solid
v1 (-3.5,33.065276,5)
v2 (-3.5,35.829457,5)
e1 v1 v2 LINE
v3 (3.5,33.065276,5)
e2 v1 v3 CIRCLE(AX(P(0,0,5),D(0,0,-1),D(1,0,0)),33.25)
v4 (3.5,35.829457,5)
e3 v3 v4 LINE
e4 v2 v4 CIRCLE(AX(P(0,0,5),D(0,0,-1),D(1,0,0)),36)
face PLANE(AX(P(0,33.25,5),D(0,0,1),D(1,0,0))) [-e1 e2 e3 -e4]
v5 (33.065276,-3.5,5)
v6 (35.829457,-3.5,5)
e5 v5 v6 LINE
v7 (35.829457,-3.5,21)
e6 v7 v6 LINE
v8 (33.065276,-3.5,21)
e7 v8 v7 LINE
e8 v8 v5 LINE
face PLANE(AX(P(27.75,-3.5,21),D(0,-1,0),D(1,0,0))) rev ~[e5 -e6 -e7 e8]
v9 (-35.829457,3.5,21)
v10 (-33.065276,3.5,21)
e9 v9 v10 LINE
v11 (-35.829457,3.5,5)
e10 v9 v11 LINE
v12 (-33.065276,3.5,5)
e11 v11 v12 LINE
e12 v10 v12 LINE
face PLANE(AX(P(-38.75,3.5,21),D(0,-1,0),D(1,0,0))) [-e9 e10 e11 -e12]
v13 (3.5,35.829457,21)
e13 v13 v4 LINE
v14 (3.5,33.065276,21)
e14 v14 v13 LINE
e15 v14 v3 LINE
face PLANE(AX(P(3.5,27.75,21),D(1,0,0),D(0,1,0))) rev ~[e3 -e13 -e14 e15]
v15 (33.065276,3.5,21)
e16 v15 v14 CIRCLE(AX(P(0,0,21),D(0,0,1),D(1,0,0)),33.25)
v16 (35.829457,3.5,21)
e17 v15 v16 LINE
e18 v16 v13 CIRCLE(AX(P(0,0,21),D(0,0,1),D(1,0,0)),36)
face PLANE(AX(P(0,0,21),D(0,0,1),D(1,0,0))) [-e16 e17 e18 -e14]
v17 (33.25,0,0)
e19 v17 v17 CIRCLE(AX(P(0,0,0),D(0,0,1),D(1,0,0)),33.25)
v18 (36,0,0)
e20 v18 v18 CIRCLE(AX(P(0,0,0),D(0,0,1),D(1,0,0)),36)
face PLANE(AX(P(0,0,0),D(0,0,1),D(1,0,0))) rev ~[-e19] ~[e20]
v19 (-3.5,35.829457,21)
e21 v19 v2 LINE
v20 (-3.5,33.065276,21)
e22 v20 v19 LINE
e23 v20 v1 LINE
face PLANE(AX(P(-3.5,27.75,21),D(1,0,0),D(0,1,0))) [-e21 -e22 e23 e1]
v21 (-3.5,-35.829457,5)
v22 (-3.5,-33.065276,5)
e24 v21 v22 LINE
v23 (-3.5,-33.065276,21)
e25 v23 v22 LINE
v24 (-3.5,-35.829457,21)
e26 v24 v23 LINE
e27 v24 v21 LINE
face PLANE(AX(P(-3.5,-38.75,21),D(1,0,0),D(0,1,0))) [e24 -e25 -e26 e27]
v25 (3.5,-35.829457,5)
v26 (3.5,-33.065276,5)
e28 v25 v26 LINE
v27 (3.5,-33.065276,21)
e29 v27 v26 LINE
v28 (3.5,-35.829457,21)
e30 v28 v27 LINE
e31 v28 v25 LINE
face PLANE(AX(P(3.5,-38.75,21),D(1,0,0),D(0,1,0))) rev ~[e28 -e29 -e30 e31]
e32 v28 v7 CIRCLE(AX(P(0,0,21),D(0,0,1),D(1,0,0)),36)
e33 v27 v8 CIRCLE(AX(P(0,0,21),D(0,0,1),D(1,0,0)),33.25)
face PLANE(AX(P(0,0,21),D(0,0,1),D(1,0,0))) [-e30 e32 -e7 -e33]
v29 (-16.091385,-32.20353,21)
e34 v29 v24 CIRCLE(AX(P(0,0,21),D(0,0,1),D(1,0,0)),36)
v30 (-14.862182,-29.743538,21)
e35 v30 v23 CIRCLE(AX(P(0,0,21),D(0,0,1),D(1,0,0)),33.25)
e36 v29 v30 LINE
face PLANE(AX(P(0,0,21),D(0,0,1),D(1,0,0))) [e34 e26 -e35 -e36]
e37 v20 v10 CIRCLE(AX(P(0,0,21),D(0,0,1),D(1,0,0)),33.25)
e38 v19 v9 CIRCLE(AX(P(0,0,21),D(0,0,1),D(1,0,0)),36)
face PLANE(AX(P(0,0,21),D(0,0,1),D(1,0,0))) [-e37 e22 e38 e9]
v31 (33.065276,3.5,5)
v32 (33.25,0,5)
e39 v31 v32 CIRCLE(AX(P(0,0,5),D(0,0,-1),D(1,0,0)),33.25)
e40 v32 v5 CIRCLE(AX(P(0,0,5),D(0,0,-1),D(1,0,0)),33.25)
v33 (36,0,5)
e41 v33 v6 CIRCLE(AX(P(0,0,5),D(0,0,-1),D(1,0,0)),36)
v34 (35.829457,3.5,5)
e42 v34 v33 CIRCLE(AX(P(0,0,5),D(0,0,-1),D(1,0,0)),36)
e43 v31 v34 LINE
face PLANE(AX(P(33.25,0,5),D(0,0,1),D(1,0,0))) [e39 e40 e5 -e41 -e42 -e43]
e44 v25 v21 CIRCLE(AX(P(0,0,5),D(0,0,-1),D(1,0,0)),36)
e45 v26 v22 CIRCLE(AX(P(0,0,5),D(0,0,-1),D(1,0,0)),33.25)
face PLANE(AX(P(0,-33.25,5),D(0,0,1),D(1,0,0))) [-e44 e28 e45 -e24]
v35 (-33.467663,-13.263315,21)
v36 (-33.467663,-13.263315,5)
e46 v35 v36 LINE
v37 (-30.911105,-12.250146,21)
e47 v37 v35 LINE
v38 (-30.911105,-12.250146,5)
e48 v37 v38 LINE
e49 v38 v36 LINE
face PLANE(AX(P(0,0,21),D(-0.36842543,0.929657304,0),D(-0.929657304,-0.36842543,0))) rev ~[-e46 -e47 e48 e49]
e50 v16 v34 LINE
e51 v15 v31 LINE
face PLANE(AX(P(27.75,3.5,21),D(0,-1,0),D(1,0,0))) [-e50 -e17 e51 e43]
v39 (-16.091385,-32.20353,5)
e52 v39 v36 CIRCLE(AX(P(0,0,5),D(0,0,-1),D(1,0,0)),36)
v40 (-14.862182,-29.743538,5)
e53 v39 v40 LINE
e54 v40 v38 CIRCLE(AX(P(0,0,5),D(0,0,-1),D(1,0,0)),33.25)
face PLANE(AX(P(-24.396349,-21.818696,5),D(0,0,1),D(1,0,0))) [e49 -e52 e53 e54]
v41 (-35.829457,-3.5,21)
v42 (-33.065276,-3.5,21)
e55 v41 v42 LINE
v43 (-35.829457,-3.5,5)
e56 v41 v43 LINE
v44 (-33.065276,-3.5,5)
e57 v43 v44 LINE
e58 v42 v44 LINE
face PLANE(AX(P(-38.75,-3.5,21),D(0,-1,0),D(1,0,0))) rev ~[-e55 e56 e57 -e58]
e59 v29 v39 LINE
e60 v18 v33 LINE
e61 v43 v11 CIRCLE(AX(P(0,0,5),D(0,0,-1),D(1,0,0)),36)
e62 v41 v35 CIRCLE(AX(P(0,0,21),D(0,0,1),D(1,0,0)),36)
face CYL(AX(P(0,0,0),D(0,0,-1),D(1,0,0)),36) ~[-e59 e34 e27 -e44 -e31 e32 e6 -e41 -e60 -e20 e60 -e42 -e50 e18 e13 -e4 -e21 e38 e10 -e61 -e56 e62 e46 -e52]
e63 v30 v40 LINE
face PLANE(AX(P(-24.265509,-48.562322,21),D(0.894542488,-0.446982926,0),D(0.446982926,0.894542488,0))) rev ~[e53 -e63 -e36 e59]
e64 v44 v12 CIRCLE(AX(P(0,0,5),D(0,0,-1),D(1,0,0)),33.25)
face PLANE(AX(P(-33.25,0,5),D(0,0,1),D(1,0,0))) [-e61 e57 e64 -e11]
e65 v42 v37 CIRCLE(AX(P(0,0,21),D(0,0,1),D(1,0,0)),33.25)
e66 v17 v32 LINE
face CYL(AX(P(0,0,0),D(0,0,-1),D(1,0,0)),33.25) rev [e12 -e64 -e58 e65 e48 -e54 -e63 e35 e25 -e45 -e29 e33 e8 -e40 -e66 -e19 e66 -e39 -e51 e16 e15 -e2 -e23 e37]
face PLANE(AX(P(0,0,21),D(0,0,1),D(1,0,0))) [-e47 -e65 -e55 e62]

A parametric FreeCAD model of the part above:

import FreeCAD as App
import Part
import Sketcher
from FreeCAD import Vector


def add_polygon(sketch, points):
    """Adds a closed chain of lines whose ends are joined by coincident constraints."""
    first, n = sketch.GeometryCount, len(points)
    for a, b in zip(points, points[1:] + points[:1]):
        sketch.addGeometry(Part.LineSegment(App.Vector(*a, 0), App.Vector(*b, 0)), False)
    for i in range(n):
        sketch.addConstraint(Sketcher.Constraint("Coincident", first + i, 2, first + (i + 1) % n, 1))

doc = App.newDocument("Part")
body = doc.addObject("PartDesign::Body", "Body")

sketch1 = doc.addObject("Sketcher::SketchObject", "Sketch")
body.addObject(sketch1)
sketch1.AttachmentSupport = (doc.XY_Plane, [""])
sketch1.MapMode = "FlatFace"
sketch1.addGeometry([
    Part.Circle(Vector(0, 0, 0), Vector(0, 0, 1), 36),
    Part.Circle(Vector(0, 0, 0), Vector(0, 0, 1), 33.25),
], False)
sketch1.addConstraint([
    Sketcher.Constraint("Coincident", 0, 3, -1, 1),
    Sketcher.Constraint("Coincident", 1, 3, -1, 1),
    Sketcher.Constraint("Diameter", 0, 72.0),
    Sketcher.Constraint("Diameter", 1, 66.5),
])
pad1 = doc.addObject("PartDesign::Pad", "Pad")
body.addObject(pad1)
pad1.Profile = sketch1
pad1.Length = 21

sketch2 = doc.addObject("Sketcher::SketchObject", "Sketch001")
body.addObject(sketch2)
sketch2.AttachmentSupport = (doc.XY_Plane, [""])
sketch2.MapMode = "FlatFace"
sketch2.AttachmentOffset = App.Placement(Vector(0, 0, 21), App.Rotation())
add_polygon(sketch2, [(-3.5, 38.75), (-3.5, 27.75), (3.5, 27.75), (3.5, 38.75)])
add_polygon(sketch2, [(-38.75, 3.5), (-38.75, -3.5), (-27.75, -3.5), (-27.75, 3.5)])
add_polygon(sketch2, [(-3.5, -27.75), (-3.5, -38.75), (3.5, -38.75), (3.5, -27.75)])
add_polygon(sketch2, [(27.75, 3.5), (27.75, -3.5), (38.75, -3.5), (38.75, 3.5)])
add_polygon(sketch2, [(-24.265509, -48.562322), (0, 0), (-52.630056, -20.857418)])
sketch2.addConstraint([
    Sketcher.Constraint("Vertical", 0),
    Sketcher.Constraint("Horizontal", 1),
    Sketcher.Constraint("Vertical", 2),
    Sketcher.Constraint("Horizontal", 3),
    Sketcher.Constraint("Vertical", 4),
    Sketcher.Constraint("Horizontal", 5),
    Sketcher.Constraint("Vertical", 6),
    Sketcher.Constraint("Horizontal", 7),
    Sketcher.Constraint("Vertical", 8),
    Sketcher.Constraint("Horizontal", 9),
    Sketcher.Constraint("Vertical", 10),
    Sketcher.Constraint("Horizontal", 11),
    Sketcher.Constraint("Vertical", 12),
    Sketcher.Constraint("Horizontal", 13),
    Sketcher.Constraint("Vertical", 14),
    Sketcher.Constraint("Horizontal", 15),
    Sketcher.Constraint("Coincident", 16, 2, -1, 1),
    Sketcher.Constraint("Symmetric", 2, 2, 8, 2, -1, 1),
    Sketcher.Constraint("Symmetric", 0, 2, 10, 2, -1, 1),
    Sketcher.Constraint("Symmetric", 6, 2, 12, 2, -1, 1),
    Sketcher.Constraint("Symmetric", 4, 2, 14, 2, -1, 1),
    Sketcher.Constraint("Horizontal", 5, 2, 12, 2),
    Sketcher.Constraint("Vertical", 3, 2, 8, 2),
    Sketcher.Constraint("Equal", 15, 0),
    Sketcher.Constraint("Equal", 11, 4),
    Sketcher.Constraint("DistanceX", 1, 1, 1, 2, 7.0),
    Sketcher.Constraint("DistanceX", 5, 1, 5, 2, 11.0),
    Sketcher.Constraint("DistanceY", 8, 2, 0, 2, 66.5),
    Sketcher.Constraint("DistanceX", 4, 2, -1, 1, 38.75),
    Sketcher.Constraint("Distance", 16, 54.287329),
    Sketcher.Constraint("Distance", 17, 56.612319),
    Sketcher.Constraint("DistanceX", 18, 2, -1, 1, 24.265509),
    Sketcher.Constraint("Distance", 18, 39.649833),
])
pocket1 = doc.addObject("PartDesign::Pocket", "Pocket")
body.addObject(pocket1)
pocket1.Profile = sketch2
pocket1.Length = 16

doc.recompute()
